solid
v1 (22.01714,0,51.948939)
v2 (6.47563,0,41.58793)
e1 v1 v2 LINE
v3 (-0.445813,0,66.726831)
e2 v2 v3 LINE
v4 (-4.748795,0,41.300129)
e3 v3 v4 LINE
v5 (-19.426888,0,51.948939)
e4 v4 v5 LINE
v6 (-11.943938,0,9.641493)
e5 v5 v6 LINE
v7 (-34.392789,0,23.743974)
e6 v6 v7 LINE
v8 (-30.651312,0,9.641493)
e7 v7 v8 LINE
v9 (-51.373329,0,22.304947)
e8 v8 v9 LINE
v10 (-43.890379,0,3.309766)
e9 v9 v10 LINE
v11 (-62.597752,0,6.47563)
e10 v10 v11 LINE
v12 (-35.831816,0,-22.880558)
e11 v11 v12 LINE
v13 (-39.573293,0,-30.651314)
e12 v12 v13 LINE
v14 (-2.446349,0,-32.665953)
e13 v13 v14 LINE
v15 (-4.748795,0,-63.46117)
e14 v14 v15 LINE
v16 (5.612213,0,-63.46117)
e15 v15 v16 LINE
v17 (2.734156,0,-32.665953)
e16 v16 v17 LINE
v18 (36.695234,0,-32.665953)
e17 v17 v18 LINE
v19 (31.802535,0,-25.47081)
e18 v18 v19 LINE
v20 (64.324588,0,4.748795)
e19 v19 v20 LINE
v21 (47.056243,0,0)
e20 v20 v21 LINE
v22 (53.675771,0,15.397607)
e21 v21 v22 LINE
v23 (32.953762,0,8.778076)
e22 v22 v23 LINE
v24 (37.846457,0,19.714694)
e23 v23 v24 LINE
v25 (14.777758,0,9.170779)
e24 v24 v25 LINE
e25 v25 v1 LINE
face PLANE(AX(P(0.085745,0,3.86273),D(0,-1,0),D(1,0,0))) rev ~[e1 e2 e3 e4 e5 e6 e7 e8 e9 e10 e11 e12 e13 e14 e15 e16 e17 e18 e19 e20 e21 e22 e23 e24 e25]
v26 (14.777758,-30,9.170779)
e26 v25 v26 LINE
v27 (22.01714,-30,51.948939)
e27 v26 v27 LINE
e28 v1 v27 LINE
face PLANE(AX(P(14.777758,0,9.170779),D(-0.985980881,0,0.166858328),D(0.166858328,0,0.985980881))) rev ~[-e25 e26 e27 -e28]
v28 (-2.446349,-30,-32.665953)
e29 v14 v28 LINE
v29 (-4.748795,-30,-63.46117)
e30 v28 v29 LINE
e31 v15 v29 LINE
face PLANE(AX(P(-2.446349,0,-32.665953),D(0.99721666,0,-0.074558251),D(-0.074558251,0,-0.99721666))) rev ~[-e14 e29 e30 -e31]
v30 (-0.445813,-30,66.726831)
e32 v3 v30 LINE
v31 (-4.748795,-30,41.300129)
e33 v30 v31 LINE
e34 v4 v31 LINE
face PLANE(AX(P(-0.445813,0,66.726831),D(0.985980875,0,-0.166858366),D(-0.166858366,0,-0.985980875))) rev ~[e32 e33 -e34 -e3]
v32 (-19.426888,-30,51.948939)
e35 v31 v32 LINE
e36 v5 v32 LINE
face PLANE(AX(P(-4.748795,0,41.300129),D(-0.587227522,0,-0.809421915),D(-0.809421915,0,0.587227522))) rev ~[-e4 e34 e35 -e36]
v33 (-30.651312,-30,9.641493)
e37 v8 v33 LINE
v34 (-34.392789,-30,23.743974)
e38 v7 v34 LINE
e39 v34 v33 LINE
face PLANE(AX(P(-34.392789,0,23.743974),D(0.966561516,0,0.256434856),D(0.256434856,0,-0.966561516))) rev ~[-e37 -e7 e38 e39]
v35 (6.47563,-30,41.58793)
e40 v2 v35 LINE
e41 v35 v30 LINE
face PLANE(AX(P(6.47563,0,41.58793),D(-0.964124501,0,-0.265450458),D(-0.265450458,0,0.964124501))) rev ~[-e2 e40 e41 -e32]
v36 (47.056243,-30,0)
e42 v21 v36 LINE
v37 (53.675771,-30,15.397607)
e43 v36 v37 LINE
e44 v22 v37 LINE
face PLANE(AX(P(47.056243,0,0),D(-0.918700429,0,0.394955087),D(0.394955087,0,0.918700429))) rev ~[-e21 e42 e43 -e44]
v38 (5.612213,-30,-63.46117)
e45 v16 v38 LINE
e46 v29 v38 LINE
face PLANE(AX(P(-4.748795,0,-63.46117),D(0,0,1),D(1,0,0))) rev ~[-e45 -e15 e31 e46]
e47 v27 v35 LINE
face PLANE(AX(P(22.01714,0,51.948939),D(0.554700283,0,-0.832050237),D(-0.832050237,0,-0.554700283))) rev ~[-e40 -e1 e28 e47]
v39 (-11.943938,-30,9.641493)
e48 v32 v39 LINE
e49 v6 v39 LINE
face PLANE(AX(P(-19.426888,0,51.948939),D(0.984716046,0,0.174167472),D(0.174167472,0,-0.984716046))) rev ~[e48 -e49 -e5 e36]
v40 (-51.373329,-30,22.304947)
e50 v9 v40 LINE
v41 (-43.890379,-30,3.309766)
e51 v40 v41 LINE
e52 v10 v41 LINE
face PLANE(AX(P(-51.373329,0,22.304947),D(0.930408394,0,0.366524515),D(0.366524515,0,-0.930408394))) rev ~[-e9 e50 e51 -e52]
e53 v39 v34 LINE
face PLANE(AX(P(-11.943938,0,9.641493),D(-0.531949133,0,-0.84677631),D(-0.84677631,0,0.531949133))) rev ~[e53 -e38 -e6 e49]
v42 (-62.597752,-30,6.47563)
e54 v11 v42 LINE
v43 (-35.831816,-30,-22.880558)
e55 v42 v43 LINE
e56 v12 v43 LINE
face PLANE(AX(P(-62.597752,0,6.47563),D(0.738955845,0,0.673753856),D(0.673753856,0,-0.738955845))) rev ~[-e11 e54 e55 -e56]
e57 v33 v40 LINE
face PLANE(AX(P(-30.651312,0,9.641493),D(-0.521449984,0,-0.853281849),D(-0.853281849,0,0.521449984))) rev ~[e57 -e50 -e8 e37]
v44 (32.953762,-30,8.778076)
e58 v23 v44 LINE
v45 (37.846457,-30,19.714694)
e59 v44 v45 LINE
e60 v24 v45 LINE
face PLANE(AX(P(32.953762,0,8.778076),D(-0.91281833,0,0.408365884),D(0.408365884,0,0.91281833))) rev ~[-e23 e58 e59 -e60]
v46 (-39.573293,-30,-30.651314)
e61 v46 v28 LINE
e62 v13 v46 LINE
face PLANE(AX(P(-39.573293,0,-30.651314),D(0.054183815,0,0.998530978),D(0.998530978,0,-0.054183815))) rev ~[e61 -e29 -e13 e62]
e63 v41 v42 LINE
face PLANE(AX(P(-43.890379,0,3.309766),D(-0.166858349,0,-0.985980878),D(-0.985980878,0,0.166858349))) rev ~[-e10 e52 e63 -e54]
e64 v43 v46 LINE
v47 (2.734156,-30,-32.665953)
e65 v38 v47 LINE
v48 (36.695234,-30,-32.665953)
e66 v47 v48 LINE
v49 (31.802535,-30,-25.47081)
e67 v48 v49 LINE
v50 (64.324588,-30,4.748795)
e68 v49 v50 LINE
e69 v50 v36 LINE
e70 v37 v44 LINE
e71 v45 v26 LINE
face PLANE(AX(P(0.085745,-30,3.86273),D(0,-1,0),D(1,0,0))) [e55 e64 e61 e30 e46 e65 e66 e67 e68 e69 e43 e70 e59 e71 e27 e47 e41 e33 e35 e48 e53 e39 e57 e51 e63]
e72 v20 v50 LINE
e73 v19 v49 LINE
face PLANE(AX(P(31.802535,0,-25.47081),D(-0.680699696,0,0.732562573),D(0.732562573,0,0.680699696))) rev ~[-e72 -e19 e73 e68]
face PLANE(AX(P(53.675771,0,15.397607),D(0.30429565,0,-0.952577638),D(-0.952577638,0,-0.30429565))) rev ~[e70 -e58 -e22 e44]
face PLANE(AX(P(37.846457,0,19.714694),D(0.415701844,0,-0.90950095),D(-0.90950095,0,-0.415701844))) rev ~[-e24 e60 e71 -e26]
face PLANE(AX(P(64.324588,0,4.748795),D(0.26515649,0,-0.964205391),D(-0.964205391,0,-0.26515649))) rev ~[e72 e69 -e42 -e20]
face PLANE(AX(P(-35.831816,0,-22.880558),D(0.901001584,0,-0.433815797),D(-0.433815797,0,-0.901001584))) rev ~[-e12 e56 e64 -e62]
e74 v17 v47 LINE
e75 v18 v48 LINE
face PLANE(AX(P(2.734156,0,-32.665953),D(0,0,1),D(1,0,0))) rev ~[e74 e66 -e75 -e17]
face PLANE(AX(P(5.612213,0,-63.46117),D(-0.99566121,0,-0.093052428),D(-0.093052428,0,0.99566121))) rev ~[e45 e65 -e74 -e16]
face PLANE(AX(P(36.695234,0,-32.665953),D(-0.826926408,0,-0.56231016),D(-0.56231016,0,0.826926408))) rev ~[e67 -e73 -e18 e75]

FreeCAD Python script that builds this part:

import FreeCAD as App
import Part
import Sketcher
Q = App.Units.Quantity


def add_polygon(sketch, points):
    """Adds a closed chain of lines whose ends are joined by coincident constraints."""
    first, n = sketch.GeometryCount, len(points)
    for a, b in zip(points, points[1:] + points[:1]):
        sketch.addGeometry(Part.LineSegment(App.Vector(*a, 0), App.Vector(*b, 0)), False)
    for i in range(n):
        sketch.addConstraint(Sketcher.Constraint("Coincident", first + i, 2, first + (i + 1) % n, 1))

doc = App.newDocument("Part")
body = doc.addObject("PartDesign::Body", "Body")

# Sketch on XZ plane
sketch1 = doc.addObject("Sketcher::SketchObject", "Sketch")
body.addObject(sketch1)
sketch1.AttachmentSupport = (doc.XZ_Plane, [""])
sketch1.MapMode = "FlatFace"
add_polygon(sketch1, [(-35.831816, -22.880558), (-39.573293, -30.651314), (-2.446349, -32.665953), (-4.748795, -63.46117), (5.612213, -63.46117), (2.734156, -32.665953), (36.695234, -32.665953), (31.802535, -25.47081), (64.324588, 4.748795), (47.056243, 0), (53.675771, 15.397607), (32.953762, 8.778076), (37.846457, 19.714694), (14.777758, 9.170779), (22.01714, 51.948939), (6.47563, 41.58793), (-0.445813, 66.726831), (-4.748795, 41.300129), (-19.426888, 51.948939), (-11.943938, 9.641493), (-34.392789, 23.743974), (-30.651312, 9.641493), (-51.373329, 22.304947), (-43.890379, 3.309766), (-62.597752, 6.47563)])  # lines 0-24
sketch1.addConstraint([
    Sketcher.Constraint("Horizontal", 3),
    Sketcher.Constraint("Horizontal", 5),
    Sketcher.Constraint("PointOnObject", 8, 2, -1),
    Sketcher.Constraint("Parallel", 13, 16),
    Sketcher.Constraint("Perpendicular", 16, 23),
    Sketcher.Constraint("Horizontal", 1, 2, 4, 2),
    Sketcher.Constraint("Horizontal", 13, 2, 17, 2),
    Sketcher.Constraint("Horizontal", 18, 2, 20, 2),
    Sketcher.Constraint("Vertical", 2, 2, 16, 2),
    Sketcher.Constraint("Distance", 13, Q("43.386399 mm")),
    Sketcher.Constraint("DistanceX", 6, 2, 5, 2, Q("4.892699 mm")),
    Sketcher.Constraint("DistanceY", 7, 2, 11, 2, Q("14.965899 mm")),
    Sketcher.Constraint("DistanceX", 12, 2, 11, 2, Q("23.068699 mm")),
    Sketcher.Constraint("DistanceY", 14, 2, 15, 2, Q("25.138901 mm")),
    Sketcher.Constraint("DistanceY", 16, 2, 14, 2, Q("0.287801 mm")),
    Sketcher.Constraint("DistanceX", 19, 2, 17, 2, Q("14.965901 mm")),
    Sketcher.Constraint("Distance", 2, Q("30.88117 mm")),
    Sketcher.Constraint("Distance", 6, Q("8.701068 mm")),
    Sketcher.Constraint("Distance", 12, Q("25.364129 mm")),
    Sketcher.Constraint("Distance", 14, Q("18.678572 mm")),
    Sketcher.Constraint("Distance", 15, Q("26.074331 mm")),
    Sketcher.Constraint("Distance", 16, Q("25.78823 mm")),
    Sketcher.Constraint("Distance", 20, Q("14.590361 mm")),
    Sketcher.Constraint("Distance", 21, Q("24.285079 mm")),
    Sketcher.Constraint("Distance", 22, Q("20.41596 mm")),
    Sketcher.Constraint("Distance", 24, Q("39.726579 mm")),
    Sketcher.Constraint("DistanceX", 3, 1, 3, 2, Q("10.361008 mm")),
    Sketcher.Constraint("DistanceX", 5, 1, 5, 2, Q("33.961078 mm")),
    Sketcher.Constraint("DistanceX", 1, 2, -1, 1, Q("2.446349 mm")),
    Sketcher.Constraint("DistanceY", 2, 2, -1, 1, Q("63.46117 mm")),
    Sketcher.Constraint("DistanceY", 6, 2, -1, 1, Q("25.47081 mm")),
    Sketcher.Constraint("DistanceX", -1, 1, 7, 2, Q("64.324588 mm")),
    Sketcher.Constraint("DistanceX", -1, 1, 9, 2, Q("53.675771 mm")),
    Sketcher.Constraint("DistanceX", -1, 1, 10, 2, Q("32.953762 mm")),
    Sketcher.Constraint("DistanceY", -1, 1, 12, 2, Q("9.170779 mm")),
    Sketcher.Constraint("DistanceX", -1, 1, 13, 2, Q("22.01714 mm")),
    Sketcher.Constraint("DistanceX", 17, 2, -1, 1, Q("19.426888 mm")),
    Sketcher.Constraint("DistanceX", 21, 2, -1, 1, Q("51.373329 mm")),
    Sketcher.Constraint("DistanceX", 22, 2, -1, 1, Q("43.890379 mm")),
    Sketcher.Constraint("DistanceY", -1, 1, 23, 2, Q("6.47563 mm")),
    Sketcher.Constraint("DistanceY", 24, 2, -1, 1, Q("22.880558 mm")),
    Sketcher.Constraint("DistanceY", 1, 2, 0, 2, Q("2.014639 mm")),
    Sketcher.Constraint("DistanceX", 2, 2, 4, 2, Q("7.482951 mm")),
    Sketcher.Constraint("DistanceX", 0, 2, 4, 2, Q("42.307449 mm")),
    Sketcher.Constraint("DistanceX", 6, 2, 8, 2, Q("15.253708 mm")),
    Sketcher.Constraint("DistanceY", 5, 2, 9, 2, Q("48.06356 mm")),
    Sketcher.Constraint("DistanceY", 10, 2, 9, 2, Q("6.619531 mm")),
    Sketcher.Constraint("DistanceX", 17, 2, 18, 2, Q("7.48295 mm")),
    Sketcher.Constraint("DistanceY", 18, 2, 19, 2, Q("14.102481 mm")),
    Sketcher.Constraint("DistanceY", 21, 2, 16, 2, Q("18.995182 mm")),
])
pad1 = doc.addObject("PartDesign::Pad", "Pad")
body.addObject(pad1)
pad1.Profile = sketch1
pad1.Length = 30

doc.recompute()
